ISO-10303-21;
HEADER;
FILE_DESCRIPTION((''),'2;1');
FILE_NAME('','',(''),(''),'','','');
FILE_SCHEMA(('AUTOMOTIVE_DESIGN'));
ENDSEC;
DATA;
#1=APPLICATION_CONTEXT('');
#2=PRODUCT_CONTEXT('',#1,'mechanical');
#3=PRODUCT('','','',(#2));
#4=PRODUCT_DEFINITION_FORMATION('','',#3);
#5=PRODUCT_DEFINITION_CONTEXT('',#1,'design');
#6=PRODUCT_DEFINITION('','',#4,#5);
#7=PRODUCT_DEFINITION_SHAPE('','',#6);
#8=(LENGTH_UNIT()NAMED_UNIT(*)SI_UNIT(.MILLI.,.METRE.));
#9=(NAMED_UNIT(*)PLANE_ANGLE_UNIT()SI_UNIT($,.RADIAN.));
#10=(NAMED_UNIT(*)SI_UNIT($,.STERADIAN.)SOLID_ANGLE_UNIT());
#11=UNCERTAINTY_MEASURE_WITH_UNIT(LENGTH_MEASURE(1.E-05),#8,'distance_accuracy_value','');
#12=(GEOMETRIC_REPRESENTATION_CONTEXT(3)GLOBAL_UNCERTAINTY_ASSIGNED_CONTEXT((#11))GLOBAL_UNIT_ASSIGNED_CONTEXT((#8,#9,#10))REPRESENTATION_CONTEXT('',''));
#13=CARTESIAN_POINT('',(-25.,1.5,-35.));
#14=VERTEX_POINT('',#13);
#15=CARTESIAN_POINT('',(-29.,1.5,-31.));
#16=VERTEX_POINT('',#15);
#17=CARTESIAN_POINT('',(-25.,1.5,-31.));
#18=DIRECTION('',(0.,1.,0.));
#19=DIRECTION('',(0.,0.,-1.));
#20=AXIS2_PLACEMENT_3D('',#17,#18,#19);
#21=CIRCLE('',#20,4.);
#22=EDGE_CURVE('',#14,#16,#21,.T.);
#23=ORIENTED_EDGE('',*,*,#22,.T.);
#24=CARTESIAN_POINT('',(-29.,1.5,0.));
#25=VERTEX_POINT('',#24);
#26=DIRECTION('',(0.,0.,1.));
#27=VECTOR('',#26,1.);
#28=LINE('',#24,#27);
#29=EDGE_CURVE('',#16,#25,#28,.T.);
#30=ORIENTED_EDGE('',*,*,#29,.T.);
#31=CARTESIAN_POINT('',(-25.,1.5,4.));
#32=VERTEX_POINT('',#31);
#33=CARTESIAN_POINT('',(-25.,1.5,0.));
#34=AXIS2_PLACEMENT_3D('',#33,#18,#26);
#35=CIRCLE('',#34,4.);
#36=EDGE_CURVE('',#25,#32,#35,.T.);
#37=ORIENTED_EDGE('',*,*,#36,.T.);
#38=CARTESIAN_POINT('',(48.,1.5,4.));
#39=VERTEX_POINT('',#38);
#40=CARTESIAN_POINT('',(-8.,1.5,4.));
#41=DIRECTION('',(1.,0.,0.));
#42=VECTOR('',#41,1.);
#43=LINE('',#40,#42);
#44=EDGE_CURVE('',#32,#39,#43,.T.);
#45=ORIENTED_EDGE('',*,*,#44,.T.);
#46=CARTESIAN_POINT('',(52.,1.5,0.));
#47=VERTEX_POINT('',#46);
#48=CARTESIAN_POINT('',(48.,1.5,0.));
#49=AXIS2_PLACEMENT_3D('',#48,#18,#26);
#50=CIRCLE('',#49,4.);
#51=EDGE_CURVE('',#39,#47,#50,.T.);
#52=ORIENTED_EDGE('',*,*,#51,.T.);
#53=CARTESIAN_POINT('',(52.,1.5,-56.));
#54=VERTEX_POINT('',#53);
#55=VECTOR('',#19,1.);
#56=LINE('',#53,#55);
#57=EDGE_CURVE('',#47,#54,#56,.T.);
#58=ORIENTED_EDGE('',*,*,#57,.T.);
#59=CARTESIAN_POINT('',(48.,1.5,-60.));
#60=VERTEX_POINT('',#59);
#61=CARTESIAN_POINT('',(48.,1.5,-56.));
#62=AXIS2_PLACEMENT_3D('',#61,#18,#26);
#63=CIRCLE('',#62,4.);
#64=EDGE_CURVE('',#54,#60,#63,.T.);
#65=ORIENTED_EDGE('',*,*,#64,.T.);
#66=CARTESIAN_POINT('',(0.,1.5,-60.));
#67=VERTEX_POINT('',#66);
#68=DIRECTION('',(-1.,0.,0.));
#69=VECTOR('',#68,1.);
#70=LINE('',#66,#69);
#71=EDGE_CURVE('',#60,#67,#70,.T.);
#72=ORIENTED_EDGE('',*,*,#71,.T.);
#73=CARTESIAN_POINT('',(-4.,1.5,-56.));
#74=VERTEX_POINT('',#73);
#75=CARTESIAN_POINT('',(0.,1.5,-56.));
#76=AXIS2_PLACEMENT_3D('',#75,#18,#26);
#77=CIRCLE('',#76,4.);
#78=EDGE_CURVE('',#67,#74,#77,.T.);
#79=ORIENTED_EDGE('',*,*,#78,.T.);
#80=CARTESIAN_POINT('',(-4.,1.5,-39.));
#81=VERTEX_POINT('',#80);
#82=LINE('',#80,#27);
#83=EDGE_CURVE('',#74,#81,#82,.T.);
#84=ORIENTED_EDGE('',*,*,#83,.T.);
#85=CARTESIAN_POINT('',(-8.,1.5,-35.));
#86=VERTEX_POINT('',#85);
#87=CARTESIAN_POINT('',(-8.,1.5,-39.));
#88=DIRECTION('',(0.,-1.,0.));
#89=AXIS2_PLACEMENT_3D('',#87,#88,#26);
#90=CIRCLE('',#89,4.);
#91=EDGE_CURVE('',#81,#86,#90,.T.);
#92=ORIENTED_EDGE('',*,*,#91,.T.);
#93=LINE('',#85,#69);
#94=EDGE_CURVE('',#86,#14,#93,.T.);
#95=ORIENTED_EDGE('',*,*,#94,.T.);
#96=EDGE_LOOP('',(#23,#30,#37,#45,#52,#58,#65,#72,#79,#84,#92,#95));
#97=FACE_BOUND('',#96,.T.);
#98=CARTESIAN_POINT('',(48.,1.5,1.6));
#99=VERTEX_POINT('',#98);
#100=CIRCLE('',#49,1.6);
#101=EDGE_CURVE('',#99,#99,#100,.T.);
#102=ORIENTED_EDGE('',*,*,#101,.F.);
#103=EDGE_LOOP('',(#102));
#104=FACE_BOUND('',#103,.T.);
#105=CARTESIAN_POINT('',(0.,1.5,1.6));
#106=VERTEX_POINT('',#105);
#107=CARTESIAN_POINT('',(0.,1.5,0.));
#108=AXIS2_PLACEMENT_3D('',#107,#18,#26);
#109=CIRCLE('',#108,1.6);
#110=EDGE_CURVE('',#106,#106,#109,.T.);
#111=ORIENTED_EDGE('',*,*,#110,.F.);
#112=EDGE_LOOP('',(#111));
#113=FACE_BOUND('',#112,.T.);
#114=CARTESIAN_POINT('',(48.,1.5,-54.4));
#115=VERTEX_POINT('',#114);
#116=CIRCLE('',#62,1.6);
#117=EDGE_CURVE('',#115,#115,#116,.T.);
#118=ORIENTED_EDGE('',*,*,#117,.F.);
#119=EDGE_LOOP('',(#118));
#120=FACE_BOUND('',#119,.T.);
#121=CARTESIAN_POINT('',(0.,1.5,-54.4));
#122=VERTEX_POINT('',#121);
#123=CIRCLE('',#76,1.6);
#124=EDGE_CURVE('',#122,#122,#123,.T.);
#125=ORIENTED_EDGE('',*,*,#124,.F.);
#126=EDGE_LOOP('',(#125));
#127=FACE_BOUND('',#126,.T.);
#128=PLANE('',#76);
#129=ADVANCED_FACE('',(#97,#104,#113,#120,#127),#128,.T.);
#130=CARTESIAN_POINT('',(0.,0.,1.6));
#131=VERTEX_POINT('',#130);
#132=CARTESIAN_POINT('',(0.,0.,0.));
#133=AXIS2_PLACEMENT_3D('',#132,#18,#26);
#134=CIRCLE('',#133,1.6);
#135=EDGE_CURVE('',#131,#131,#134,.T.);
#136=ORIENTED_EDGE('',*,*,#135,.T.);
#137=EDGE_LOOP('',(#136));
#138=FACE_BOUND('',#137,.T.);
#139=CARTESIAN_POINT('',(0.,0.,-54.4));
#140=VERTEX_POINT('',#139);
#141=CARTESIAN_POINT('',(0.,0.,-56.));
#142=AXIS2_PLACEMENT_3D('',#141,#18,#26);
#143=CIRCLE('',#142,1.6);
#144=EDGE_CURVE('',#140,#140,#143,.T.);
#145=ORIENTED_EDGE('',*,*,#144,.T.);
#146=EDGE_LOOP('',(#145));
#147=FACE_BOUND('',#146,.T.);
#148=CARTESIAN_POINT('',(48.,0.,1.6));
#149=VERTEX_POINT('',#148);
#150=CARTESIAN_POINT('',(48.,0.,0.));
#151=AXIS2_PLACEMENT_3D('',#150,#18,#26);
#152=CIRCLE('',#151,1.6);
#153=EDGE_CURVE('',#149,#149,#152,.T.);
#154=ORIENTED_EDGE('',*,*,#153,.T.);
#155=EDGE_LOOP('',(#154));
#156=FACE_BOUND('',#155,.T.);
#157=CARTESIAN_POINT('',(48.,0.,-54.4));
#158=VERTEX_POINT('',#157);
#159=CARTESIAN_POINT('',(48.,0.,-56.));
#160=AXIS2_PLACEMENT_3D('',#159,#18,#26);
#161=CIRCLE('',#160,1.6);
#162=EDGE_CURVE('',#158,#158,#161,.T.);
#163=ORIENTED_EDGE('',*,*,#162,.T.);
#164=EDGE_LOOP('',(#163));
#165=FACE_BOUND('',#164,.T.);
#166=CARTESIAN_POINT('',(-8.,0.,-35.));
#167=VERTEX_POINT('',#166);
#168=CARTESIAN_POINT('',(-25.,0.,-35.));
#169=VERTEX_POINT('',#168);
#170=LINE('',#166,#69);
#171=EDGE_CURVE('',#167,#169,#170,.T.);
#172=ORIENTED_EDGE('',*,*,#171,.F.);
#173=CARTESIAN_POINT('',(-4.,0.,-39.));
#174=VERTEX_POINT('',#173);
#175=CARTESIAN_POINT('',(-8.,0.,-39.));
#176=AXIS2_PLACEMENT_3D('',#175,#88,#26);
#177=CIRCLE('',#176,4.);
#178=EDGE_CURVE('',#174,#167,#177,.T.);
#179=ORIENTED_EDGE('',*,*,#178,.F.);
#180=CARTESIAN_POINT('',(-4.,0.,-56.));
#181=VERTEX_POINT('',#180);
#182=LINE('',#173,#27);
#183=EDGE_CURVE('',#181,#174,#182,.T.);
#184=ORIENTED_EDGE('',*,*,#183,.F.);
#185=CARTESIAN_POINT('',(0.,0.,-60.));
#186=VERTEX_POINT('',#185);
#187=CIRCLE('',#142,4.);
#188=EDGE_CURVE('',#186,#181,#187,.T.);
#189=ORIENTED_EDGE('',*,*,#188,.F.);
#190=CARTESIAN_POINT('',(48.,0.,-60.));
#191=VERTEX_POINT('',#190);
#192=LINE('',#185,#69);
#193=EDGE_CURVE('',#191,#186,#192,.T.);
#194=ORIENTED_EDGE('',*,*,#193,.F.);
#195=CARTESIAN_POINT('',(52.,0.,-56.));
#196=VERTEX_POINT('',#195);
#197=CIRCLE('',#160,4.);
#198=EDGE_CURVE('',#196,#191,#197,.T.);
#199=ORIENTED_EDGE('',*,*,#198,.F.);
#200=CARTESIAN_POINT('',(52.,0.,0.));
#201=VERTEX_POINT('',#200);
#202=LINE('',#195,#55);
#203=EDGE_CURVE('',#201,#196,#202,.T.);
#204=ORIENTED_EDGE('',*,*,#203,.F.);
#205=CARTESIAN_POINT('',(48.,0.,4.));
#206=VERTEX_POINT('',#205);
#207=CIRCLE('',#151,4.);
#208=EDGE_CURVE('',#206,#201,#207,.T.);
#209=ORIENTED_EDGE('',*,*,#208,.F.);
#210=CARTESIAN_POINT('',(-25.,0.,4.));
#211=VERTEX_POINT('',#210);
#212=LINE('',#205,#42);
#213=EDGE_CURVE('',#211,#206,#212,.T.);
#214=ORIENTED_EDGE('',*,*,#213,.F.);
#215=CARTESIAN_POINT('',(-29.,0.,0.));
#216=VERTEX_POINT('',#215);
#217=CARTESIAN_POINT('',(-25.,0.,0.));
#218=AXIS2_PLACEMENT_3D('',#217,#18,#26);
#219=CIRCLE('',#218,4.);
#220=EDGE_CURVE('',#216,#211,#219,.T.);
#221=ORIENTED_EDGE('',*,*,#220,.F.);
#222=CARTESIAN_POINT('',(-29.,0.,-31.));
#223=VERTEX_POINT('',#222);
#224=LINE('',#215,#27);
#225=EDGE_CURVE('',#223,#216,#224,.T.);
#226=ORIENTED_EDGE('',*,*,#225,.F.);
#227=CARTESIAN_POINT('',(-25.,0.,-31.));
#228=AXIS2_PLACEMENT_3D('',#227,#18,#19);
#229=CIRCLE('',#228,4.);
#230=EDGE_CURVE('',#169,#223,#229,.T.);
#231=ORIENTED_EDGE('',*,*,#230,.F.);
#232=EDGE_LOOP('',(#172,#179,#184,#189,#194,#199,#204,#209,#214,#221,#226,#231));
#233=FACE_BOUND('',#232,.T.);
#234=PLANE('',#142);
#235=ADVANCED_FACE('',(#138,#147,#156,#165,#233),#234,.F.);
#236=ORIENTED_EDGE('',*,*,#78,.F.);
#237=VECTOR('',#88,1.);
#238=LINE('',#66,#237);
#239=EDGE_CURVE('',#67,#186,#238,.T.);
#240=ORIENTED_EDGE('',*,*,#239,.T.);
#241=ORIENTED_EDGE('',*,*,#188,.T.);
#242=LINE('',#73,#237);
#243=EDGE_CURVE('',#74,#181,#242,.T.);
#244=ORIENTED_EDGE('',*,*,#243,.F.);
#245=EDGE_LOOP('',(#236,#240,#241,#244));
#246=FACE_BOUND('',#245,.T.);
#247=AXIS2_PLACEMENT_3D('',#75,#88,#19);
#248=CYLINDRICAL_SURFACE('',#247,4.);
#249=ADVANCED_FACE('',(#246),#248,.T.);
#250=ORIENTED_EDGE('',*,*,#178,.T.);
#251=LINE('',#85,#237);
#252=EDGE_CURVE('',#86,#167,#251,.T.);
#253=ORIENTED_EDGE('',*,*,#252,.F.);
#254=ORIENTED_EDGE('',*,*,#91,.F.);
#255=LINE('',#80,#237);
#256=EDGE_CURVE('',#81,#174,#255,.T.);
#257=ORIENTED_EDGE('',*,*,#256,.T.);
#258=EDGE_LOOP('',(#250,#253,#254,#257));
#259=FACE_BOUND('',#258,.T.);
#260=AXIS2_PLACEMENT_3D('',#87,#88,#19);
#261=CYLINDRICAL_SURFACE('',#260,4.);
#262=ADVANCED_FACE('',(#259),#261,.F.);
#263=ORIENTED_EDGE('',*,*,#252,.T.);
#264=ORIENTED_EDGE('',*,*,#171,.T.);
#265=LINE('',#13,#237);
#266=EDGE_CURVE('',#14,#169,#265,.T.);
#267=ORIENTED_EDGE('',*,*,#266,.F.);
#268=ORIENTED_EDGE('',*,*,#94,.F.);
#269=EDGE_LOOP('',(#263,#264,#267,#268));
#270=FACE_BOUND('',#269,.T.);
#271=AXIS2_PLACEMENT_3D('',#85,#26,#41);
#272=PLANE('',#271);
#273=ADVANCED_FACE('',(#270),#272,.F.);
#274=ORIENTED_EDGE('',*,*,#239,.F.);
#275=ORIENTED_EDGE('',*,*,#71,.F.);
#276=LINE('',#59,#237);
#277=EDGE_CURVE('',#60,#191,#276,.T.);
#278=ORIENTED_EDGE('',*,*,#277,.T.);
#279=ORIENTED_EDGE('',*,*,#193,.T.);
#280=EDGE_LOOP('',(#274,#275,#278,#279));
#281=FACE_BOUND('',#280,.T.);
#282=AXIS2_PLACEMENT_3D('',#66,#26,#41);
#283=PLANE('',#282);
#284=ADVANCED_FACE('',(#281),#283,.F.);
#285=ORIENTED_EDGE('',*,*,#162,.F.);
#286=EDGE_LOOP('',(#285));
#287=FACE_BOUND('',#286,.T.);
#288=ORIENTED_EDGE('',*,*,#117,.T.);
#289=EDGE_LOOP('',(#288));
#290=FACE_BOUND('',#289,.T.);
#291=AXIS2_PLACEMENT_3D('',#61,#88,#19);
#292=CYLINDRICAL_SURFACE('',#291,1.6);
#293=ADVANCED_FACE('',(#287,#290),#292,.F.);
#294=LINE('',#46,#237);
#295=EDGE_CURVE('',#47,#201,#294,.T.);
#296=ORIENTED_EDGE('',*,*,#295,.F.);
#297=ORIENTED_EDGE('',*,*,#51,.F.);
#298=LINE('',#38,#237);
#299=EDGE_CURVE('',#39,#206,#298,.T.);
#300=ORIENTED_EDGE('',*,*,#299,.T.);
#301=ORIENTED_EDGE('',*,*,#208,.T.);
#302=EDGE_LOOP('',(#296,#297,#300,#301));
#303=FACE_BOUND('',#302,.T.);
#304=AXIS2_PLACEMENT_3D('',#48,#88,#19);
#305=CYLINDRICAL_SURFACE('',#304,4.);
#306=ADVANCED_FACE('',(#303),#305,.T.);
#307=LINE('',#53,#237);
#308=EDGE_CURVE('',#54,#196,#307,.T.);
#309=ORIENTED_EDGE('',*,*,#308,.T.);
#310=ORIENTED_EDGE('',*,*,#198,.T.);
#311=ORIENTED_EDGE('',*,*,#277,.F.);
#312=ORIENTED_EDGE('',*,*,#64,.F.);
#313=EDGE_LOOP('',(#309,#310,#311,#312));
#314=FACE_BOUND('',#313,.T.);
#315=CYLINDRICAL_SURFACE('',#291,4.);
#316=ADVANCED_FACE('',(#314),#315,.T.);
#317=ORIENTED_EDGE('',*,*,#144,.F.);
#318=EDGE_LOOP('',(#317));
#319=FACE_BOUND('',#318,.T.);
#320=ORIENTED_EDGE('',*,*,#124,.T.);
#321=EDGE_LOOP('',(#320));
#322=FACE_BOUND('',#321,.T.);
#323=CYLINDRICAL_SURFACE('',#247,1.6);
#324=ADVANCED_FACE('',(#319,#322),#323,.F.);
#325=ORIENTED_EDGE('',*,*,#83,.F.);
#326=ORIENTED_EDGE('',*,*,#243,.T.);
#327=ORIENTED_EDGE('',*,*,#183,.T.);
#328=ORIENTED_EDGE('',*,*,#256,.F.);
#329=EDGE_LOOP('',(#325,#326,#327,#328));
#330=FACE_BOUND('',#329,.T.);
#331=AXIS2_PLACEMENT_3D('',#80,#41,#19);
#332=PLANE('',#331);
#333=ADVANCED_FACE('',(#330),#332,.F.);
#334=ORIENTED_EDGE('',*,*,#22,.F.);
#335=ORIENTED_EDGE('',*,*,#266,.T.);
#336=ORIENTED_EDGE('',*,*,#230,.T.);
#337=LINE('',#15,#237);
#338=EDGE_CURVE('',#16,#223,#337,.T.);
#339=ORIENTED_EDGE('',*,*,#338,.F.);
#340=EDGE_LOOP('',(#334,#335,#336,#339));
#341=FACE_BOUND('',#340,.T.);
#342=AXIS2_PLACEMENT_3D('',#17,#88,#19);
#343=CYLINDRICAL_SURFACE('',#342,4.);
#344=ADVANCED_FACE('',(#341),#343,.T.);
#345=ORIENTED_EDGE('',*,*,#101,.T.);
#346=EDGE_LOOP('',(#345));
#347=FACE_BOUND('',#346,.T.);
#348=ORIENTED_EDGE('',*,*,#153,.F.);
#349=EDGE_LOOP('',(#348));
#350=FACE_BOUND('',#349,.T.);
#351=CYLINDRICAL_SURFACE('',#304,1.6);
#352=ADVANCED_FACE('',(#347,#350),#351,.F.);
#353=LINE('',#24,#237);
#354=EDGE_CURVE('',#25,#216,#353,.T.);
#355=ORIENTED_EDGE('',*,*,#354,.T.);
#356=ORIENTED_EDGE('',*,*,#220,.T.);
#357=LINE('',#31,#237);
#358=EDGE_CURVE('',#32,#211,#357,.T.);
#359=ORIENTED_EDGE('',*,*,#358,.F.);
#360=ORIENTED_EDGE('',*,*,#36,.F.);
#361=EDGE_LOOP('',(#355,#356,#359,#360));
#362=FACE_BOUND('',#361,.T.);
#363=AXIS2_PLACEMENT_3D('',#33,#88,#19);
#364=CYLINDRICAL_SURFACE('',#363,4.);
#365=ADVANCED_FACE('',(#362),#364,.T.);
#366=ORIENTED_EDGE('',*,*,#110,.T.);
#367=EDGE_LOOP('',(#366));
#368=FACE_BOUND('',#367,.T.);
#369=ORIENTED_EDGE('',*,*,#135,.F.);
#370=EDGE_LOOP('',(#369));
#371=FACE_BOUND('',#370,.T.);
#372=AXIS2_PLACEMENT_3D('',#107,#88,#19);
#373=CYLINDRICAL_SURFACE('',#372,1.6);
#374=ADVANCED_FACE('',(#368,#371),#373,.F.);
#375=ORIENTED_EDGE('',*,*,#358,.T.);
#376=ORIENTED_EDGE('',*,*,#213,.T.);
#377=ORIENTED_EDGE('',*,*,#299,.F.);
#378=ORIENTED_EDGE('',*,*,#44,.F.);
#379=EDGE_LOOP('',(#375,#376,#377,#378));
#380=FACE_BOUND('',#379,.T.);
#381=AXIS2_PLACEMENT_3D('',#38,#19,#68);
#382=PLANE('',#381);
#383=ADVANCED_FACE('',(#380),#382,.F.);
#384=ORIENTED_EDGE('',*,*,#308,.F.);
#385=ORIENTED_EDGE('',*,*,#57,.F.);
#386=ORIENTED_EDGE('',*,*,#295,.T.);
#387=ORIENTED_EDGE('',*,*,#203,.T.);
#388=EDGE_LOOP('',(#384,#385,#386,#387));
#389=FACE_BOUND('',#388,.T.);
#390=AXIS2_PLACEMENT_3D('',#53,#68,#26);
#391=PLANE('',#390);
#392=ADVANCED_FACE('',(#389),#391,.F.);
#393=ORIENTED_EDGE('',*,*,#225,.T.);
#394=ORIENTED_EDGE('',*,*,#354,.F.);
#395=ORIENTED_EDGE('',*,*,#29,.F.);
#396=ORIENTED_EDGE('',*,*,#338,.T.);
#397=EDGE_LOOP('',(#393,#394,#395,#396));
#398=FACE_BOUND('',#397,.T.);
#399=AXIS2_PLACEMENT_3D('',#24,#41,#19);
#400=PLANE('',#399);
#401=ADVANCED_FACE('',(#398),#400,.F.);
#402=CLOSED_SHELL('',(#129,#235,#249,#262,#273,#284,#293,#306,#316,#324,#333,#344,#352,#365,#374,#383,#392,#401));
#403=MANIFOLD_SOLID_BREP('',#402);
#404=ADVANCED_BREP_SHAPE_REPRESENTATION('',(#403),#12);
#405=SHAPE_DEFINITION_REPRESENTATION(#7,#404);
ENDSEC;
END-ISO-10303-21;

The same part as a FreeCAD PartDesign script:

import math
import FreeCAD as App
import Part
import Sketcher
from FreeCAD import Vector

doc = App.newDocument("Part")
body = doc.addObject("PartDesign::Body", "Body")

sketch1 = body.newObject("Sketcher::SketchObject", "Sketch")
sketch1.AttachmentSupport = (doc.getObject("XZ_Plane"), [""])
sketch1.MapMode = "FlatFace"
sketch1.addGeometry(Part.LineSegment(Vector(-8, -35, 0), Vector(-25, -35, 0)), False)
sketch1.addGeometry(Part.ArcOfCircle(Part.Circle(Vector(-25, -31, 0), Vector(0, 0, 1), 4), math.radians(180), math.radians(270)), False)
sketch1.addGeometry(Part.LineSegment(Vector(-29, -31, 0), Vector(-29, 0, 0)), False)
sketch1.addGeometry(Part.ArcOfCircle(Part.Circle(Vector(-25, 0, 0), Vector(0, 0, 1), 4), math.radians(90), math.radians(180)), False)
sketch1.addGeometry(Part.LineSegment(Vector(-25, 4, 0), Vector(48, 4, 0)), False)
sketch1.addGeometry(Part.ArcOfCircle(Part.Circle(Vector(48, 0, 0), Vector(0, 0, 1), 4), math.radians(0), math.radians(90)), False)
sketch1.addGeometry(Part.LineSegment(Vector(52, 0, 0), Vector(52, -56, 0)), False)
sketch1.addGeometry(Part.ArcOfCircle(Part.Circle(Vector(48, -56, 0), Vector(0, 0, 1), 4), math.radians(-90), math.radians(0)), False)
sketch1.addGeometry(Part.LineSegment(Vector(48, -60, 0), Vector(0, -60, 0)), False)
sketch1.addGeometry(Part.ArcOfCircle(Part.Circle(Vector(0, -56, 0), Vector(0, 0, 1), 4), math.radians(180), math.radians(270)), False)
sketch1.addGeometry(Part.LineSegment(Vector(-4, -56, 0), Vector(-4, -39, 0)), False)
sketch1.addGeometry(Part.ArcOfCircle(Part.Circle(Vector(-8, -39, 0), Vector(0, 0, 1), 4), math.radians(0), math.radians(90)), False)
sketch1.addGeometry(Part.Circle(Vector(0, 0, 0), Vector(0, 0, 1), 1.6), False)
sketch1.addGeometry(Part.Circle(Vector(48, 0, 0), Vector(0, 0, 1), 1.6), False)
sketch1.addGeometry(Part.Circle(Vector(0, -56, 0), Vector(0, 0, 1), 1.6), False)
sketch1.addGeometry(Part.Circle(Vector(48, -56, 0), Vector(0, 0, 1), 1.6), False)
sketch1.addConstraint(Sketcher.Constraint("Tangent", 0, 2, 1, 2))
sketch1.addConstraint(Sketcher.Constraint("Tangent", 1, 1, 2, 1))
sketch1.addConstraint(Sketcher.Constraint("Tangent", 2, 2, 3, 2))
sketch1.addConstraint(Sketcher.Constraint("Tangent", 3, 1, 4, 1))
sketch1.addConstraint(Sketcher.Constraint("Tangent", 4, 2, 5, 2))
sketch1.addConstraint(Sketcher.Constraint("Tangent", 5, 1, 6, 1))
sketch1.addConstraint(Sketcher.Constraint("Tangent", 6, 2, 7, 2))
sketch1.addConstraint(Sketcher.Constraint("Tangent", 7, 1, 8, 1))
sketch1.addConstraint(Sketcher.Constraint("Tangent", 8, 2, 9, 2))
sketch1.addConstraint(Sketcher.Constraint("Tangent", 9, 1, 10, 1))
sketch1.addConstraint(Sketcher.Constraint("Tangent", 10, 2, 11, 1))
sketch1.addConstraint(Sketcher.Constraint("Tangent", 11, 2, 0, 1))
sketch1.addConstraint(Sketcher.Constraint("Horizontal", 0))
sketch1.addConstraint(Sketcher.Constraint("Vertical", 2))
sketch1.addConstraint(Sketcher.Constraint("Horizontal", 4))
sketch1.addConstraint(Sketcher.Constraint("Vertical", 6))
sketch1.addConstraint(Sketcher.Constraint("Horizontal", 8))
sketch1.addConstraint(Sketcher.Constraint("Vertical", 10))
sketch1.addConstraint(Sketcher.Constraint("Coincident", 12, 3, -1, 1))
sketch1.addConstraint(Sketcher.Constraint("Coincident", 13, 3, 5, 3))
sketch1.addConstraint(Sketcher.Constraint("Coincident", 14, 3, 9, 3))
sketch1.addConstraint(Sketcher.Constraint("Coincident", 15, 3, 7, 3))
sketch1.addConstraint(Sketcher.Constraint("Equal", 1, 3))
sketch1.addConstraint(Sketcher.Constraint("Equal", 3, 5))
sketch1.addConstraint(Sketcher.Constraint("Equal", 5, 7))
sketch1.addConstraint(Sketcher.Constraint("Equal", 7, 9))
sketch1.addConstraint(Sketcher.Constraint("Equal", 9, 11))
sketch1.addConstraint(Sketcher.Constraint("Equal", 12, 13))
sketch1.addConstraint(Sketcher.Constraint("Equal", 13, 14))
sketch1.addConstraint(Sketcher.Constraint("Equal", 14, 15))
sketch1.addConstraint(Sketcher.Constraint("PointOnObject", 3, 3, -1))
sketch1.addConstraint(Sketcher.Constraint("PointOnObject", 9, 3, -2))
sketch1.addConstraint(Sketcher.Constraint("Equal", 0, 10))
sketch1.addConstraint(Sketcher.Constraint("Radius", 1, 4.0))
sketch1.addConstraint(Sketcher.Constraint("Diameter", 12, 3.2))
sketch1.addConstraint(Sketcher.Constraint("DistanceX", 0, 2, 0, 1, 17.0))
sketch1.addConstraint(Sketcher.Constraint("DistanceX", 4, 1, 4, 2, 73.0))
sketch1.addConstraint(Sketcher.Constraint("DistanceY", 2, 1, 2, 2, 31.0))
pad1 = body.newObject("PartDesign::Pad", "Pad")
pad1.Profile = sketch1
pad1.Length = 1.5
pad1.Reversed = True

doc.recompute()
